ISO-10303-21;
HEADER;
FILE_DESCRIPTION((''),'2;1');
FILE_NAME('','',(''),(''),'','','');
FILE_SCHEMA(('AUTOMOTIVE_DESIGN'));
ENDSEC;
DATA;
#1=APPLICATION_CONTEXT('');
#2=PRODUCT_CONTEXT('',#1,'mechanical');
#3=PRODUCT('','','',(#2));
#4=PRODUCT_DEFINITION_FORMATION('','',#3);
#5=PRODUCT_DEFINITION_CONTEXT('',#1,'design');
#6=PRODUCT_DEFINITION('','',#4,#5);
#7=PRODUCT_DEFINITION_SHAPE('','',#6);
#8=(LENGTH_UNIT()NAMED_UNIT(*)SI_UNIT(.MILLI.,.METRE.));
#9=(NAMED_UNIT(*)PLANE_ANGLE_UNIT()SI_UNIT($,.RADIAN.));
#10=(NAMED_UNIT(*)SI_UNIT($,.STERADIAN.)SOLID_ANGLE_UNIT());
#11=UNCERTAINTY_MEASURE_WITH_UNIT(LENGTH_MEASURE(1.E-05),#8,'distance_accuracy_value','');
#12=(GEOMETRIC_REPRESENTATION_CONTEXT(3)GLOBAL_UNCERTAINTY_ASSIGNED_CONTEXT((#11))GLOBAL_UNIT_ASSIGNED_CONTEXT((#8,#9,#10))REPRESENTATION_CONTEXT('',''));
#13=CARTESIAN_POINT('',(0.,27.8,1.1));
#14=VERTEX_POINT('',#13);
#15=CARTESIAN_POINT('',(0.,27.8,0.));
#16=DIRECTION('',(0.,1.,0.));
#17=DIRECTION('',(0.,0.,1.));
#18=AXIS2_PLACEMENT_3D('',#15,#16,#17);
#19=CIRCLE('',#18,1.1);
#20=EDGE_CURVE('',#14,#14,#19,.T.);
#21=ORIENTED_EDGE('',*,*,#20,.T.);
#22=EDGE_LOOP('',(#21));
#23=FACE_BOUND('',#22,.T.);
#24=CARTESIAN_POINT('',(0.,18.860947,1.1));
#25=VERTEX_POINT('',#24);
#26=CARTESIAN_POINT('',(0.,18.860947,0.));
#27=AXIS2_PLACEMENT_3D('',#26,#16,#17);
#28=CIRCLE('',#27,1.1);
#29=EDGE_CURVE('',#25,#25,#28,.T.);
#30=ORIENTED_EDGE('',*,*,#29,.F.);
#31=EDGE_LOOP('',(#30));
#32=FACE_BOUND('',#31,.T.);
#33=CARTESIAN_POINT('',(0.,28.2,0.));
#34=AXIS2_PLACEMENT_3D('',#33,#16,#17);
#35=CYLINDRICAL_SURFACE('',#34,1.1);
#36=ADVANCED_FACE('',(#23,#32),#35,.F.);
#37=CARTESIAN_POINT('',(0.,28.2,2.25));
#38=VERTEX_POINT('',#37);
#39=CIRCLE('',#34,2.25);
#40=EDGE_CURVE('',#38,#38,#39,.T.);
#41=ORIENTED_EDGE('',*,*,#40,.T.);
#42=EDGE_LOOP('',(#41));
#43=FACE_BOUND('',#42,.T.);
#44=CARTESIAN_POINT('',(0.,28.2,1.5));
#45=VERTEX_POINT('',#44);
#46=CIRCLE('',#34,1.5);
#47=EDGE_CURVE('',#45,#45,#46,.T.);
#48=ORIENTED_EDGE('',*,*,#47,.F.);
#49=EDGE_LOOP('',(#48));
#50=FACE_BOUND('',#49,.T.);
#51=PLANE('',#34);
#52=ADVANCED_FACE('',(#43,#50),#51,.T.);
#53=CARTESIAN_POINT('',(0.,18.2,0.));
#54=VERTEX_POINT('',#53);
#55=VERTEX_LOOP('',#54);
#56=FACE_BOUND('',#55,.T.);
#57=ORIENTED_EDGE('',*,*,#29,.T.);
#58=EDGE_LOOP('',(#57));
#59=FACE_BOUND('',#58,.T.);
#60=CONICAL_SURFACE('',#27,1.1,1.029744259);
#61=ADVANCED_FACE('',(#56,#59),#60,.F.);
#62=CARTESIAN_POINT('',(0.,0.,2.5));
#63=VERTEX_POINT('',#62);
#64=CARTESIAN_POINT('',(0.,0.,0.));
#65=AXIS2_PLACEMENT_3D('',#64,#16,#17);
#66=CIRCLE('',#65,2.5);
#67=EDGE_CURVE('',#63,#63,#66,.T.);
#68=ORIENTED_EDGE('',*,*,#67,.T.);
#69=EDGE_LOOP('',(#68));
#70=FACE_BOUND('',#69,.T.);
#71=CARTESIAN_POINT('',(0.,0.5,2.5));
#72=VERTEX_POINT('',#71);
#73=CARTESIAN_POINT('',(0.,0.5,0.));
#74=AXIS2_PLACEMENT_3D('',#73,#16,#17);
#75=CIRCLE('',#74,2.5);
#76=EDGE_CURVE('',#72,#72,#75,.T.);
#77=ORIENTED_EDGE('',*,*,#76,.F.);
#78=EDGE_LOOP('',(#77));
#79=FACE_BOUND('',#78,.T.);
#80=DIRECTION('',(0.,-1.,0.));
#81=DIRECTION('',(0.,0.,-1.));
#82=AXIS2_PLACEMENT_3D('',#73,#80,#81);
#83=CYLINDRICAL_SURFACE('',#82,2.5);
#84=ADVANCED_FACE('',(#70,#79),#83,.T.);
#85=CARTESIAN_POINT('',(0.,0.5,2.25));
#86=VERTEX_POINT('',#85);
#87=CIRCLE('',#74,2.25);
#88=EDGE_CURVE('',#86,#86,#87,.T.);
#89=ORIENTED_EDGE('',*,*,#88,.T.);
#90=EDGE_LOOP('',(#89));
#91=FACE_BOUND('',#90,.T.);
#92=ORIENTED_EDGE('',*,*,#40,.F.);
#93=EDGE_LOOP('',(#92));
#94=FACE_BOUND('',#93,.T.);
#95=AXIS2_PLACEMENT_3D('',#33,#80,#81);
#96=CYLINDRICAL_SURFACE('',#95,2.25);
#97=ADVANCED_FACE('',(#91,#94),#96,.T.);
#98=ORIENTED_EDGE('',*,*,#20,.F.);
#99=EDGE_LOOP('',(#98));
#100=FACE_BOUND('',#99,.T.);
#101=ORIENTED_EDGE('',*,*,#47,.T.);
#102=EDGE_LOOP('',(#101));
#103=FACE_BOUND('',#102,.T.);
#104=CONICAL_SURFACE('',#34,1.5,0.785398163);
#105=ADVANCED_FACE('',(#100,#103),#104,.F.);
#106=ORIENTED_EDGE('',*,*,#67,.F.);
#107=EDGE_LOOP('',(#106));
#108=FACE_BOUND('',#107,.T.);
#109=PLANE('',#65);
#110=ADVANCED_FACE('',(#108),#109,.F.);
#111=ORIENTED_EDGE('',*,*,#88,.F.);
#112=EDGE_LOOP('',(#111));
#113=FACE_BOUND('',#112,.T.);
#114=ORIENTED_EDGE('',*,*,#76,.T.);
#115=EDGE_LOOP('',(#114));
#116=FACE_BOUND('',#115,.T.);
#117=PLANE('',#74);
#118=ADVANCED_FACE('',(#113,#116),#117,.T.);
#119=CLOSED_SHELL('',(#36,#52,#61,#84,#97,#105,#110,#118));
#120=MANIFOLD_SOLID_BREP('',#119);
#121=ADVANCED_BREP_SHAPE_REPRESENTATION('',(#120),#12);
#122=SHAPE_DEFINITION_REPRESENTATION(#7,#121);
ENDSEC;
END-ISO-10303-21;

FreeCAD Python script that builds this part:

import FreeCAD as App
import Part
import Sketcher

doc = App.newDocument("Part")
params = doc.addObject("Spreadsheet::Sheet", "Params")
for row, (alias, value) in enumerate([
    ("sketch1_diameter", "5 mm"),
    ("pad1_length", "0.5 mm"),
    ("sketch2_diameter", "4.5 mm"),
    ("pad2_length", "27.7 mm"),
    ("sketch3_diameter", "2.2 mm"),
    ("hole_diameter", "2.2 mm"),
    ("hole_depth", "9.339053 mm"),
    ("hole_csink_diameter", "3 mm"),
], start=1):
    params.set(f"A{row}", alias)
    params.set(f"B{row}", "=" + value)
    params.setAlias(f"B{row}", alias)

body = doc.addObject("PartDesign::Body", "Body")

# Sketch on XZ plane
sketch1 = body.newObject("Sketcher::SketchObject", "Sketch")
sketch1.AttachmentSupport = (doc.getObject("XZ_Plane"), [""])
sketch1.MapMode = "FlatFace"
sketch1.addGeometry(Part.Circle(App.Vector(0, 0, 0), App.Vector(0, 0, 1), 2.5), False)
sketch1.addConstraint([
    Sketcher.Constraint("Coincident", 0, 3, -1, 1),
    Sketcher.Constraint("Diameter", 0, 5.0),
])
sketch1.setExpression("Constraints[1]", "Params.sketch1_diameter")
pad1 = body.newObject("PartDesign::Pad", "Pad")
pad1.Profile = sketch1
pad1.setExpression("Length", "Params.pad1_length")
pad1.Reversed = True

# Sketch on XZ plane
sketch2 = body.newObject("Sketcher::SketchObject", "Sketch001")
sketch2.AttachmentSupport = (doc.getObject("XZ_Plane"), [""])
sketch2.MapMode = "FlatFace"
sketch2.AttachmentOffset = App.Placement(App.Vector(0, 0, -0.5), App.Rotation())
sketch2.addGeometry(Part.Circle(App.Vector(0, 0, 0), App.Vector(0, 0, 1), 2.2), False)
sketch2.addConstraint([
    Sketcher.Constraint("Coincident", 0, 3, -1, 1),
    Sketcher.Constraint("Diameter", 0, 4.5),
])
sketch2.setExpression("Constraints[1]", "Params.sketch2_diameter")
pad2 = body.newObject("PartDesign::Pad", "Pad001")
pad2.Profile = sketch2
pad2.setExpression("Length", "Params.pad2_length")
pad2.Reversed = True

# Sketch on XZ plane
sketch3 = body.newObject("Sketcher::SketchObject", "Sketch002")
sketch3.AttachmentSupport = (doc.getObject("XZ_Plane"), [""])
sketch3.MapMode = "FlatFace"
sketch3.AttachmentOffset = App.Placement(App.Vector(0, 0, -28.2), App.Rotation())
sketch3.addGeometry(Part.Circle(App.Vector(0, 0, 0), App.Vector(0, 0, 1), 1.1), False)
sketch3.addConstraint([
    Sketcher.Constraint("Coincident", 0, 3, -1, 1),
    Sketcher.Constraint("Diameter", 0, 2.2),
])
sketch3.setExpression("Constraints[1]", "Params.sketch3_diameter")
doc.recompute()
hole = body.newObject("PartDesign::Hole", "Hole")
hole.Profile = sketch3
hole.ThreadType = "None"
hole.setExpression("Diameter", "Params.hole_diameter")
hole.DepthType = "Dimension"
hole.setExpression("Depth", "Params.hole_depth")
hole.DrillPoint = "Angled"
hole.DrillPointAngle = 118
hole.HoleCutType = "Countersink"
hole.setExpression("HoleCutDiameter", "Params.hole_csink_diameter")
hole.HoleCutCountersinkAngle = 90
hole.Reversed = True

doc.recompute()
